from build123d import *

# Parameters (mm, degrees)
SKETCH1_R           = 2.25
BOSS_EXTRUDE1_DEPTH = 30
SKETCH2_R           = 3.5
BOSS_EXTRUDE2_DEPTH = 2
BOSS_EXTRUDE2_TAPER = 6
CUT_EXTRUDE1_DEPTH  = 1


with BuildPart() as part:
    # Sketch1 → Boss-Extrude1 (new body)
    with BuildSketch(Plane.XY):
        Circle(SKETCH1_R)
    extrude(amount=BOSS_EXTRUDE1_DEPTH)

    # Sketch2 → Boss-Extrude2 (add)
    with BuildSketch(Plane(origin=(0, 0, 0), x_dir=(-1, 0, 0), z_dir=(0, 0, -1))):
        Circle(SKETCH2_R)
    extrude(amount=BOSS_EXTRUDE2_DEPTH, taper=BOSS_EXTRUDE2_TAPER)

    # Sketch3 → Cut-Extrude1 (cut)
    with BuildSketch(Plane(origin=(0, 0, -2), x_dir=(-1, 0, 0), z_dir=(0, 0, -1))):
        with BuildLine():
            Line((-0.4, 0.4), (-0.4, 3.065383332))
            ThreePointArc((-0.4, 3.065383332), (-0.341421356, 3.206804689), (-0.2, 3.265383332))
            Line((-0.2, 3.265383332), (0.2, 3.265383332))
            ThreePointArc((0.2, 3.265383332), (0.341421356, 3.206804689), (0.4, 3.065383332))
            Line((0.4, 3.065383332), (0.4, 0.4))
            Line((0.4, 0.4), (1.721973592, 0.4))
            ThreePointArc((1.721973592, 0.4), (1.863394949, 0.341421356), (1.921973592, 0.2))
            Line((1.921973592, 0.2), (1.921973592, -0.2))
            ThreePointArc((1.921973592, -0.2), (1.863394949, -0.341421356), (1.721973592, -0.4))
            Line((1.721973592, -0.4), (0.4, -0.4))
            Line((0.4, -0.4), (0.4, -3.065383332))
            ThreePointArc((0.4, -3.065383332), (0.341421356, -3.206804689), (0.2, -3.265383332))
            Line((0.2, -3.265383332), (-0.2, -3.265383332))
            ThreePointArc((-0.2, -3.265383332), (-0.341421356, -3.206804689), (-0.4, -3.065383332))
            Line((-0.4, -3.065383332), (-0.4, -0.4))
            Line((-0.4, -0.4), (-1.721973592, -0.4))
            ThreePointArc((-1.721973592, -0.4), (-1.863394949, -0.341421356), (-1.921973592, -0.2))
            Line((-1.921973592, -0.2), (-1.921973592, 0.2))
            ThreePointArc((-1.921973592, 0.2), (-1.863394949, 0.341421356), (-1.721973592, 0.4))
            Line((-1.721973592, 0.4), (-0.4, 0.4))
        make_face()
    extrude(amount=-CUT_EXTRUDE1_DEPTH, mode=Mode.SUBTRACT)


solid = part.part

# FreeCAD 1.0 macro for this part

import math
import FreeCAD as App
import Part
import Sketcher

V = App.Vector

doc = App.newDocument("Part")
body = doc.addObject("PartDesign::Body", "Body")

# Sketch on XY plane
sketch1 = doc.addObject("Sketcher::SketchObject", "Sketch")
body.addObject(sketch1)
sketch1.AttachmentSupport = (doc.XY_Plane, [""])
sketch1.MapMode = "FlatFace"
sketch1.addGeometry(Part.Circle(V(0, 0, 0), V(0, 0, 1), 2.2), False)
sketch1.addConstraint(Sketcher.Constraint("Coincident", 0, 3, -1, 1))
sketch1.addConstraint(Sketcher.Constraint("Diameter", 0, 4.5))
pad1 = doc.addObject("PartDesign::Pad", "Pad")
body.addObject(pad1)
pad1.Profile = sketch1
pad1.Length = 30

# Sketch on XY plane
sketch2 = doc.addObject("Sketcher::SketchObject", "Sketch001")
body.addObject(sketch2)
sketch2.AttachmentSupport = (doc.XY_Plane, [""])
sketch2.MapMode = "FlatFace"
sketch2.addGeometry(Part.Circle(V(0, 0, 0), V(0, 0, 1), 3.5), False)
sketch2.addConstraint(Sketcher.Constraint("Coincident", 0, 3, -1, 1))
sketch2.addConstraint(Sketcher.Constraint("Diameter", 0, 7.0))
pad2 = doc.addObject("PartDesign::Pad", "Pad001")
body.addObject(pad2)
pad2.Profile = sketch2
pad2.Length = 2
pad2.Reversed = True
pad2.TaperAngle = -6

# Sketch on XY plane
sketch3 = doc.addObject("Sketcher::SketchObject", "Sketch002")
body.addObject(sketch3)
sketch3.AttachmentSupport = (doc.XY_Plane, [""])
sketch3.MapMode = "FlatFace"
sketch3.AttachmentOffset = App.Placement(V(0, 0, -2), App.Rotation())
sketch3.addGeometry(Part.LineSegment(V(0.4, 3.07, 0), V(0.4, 0.4, 0)), False)
sketch3.addGeometry(Part.LineSegment(V(0.4, 0.4, 0), V(1.72, 0.4, 0)), False)
sketch3.addGeometry(Part.ArcOfCircle(Part.Circle(V(1.72, 0.2, 0), V(0, 0, 1), 0.2), math.radians(0), math.radians(90)), False)
sketch3.addGeometry(Part.LineSegment(V(1.92, 0.2, 0), V(1.92, -0.2, 0)), False)
sketch3.addGeometry(Part.ArcOfCircle(Part.Circle(V(1.72, -0.2, 0), V(0, 0, 1), 0.2), math.radians(-90), math.radians(0)), False)
sketch3.addGeometry(Part.LineSegment(V(1.72, -0.4, 0), V(0.4, -0.4, 0)), False)
sketch3.addGeometry(Part.LineSegment(V(0.4, -0.4, 0), V(0.4, -3.07, 0)), False)
sketch3.addGeometry(Part.ArcOfCircle(Part.Circle(V(0.2, -3.07, 0), V(0, 0, 1), 0.2), math.radians(-90), math.radians(0)), False)
sketch3.addGeometry(Part.LineSegment(V(0.2, -3.27, 0), V(-0.2, -3.27, 0)), False)
sketch3.addGeometry(Part.ArcOfCircle(Part.Circle(V(-0.2, -3.07, 0), V(0, 0, 1), 0.2), math.radians(180), math.radians(270)), False)
sketch3.addGeometry(Part.LineSegment(V(-0.4, -3.07, 0), V(-0.4, -0.4, 0)), False)
sketch3.addGeometry(Part.LineSegment(V(-0.4, -0.4, 0), V(-1.72, -0.4, 0)), False)
sketch3.addGeometry(Part.ArcOfCircle(Part.Circle(V(-1.72, -0.2, 0), V(0, 0, 1), 0.2), math.radians(180), math.radians(270)), False)
sketch3.addGeometry(Part.LineSegment(V(-1.92, -0.2, 0), V(-1.92, 0.2, 0)), False)
sketch3.addGeometry(Part.ArcOfCircle(Part.Circle(V(-1.72, 0.2, 0), V(0, 0, 1), 0.2), math.radians(90), math.radians(180)), False)
sketch3.addGeometry(Part.LineSegment(V(-1.72, 0.4, 0), V(-0.4, 0.4, 0)), False)
sketch3.addGeometry(Part.LineSegment(V(-0.4, 0.4, 0), V(-0.4, 3.07, 0)), False)
sketch3.addGeometry(Part.ArcOfCircle(Part.Circle(V(-0.2, 3.07, 0), V(0, 0, 1), 0.2), math.radians(90), math.radians(180)), False)
sketch3.addGeometry(Part.LineSegment(V(-0.2, 3.27, 0), V(0.2, 3.27, 0)), False)
sketch3.addGeometry(Part.ArcOfCircle(Part.Circle(V(0.2, 3.07, 0), V(0, 0, 1), 0.2), math.radians(0), math.radians(90)), False)
sketch3.addConstraint(Sketcher.Constraint("Coincident", 0, 2, 1, 1))
sketch3.addConstraint(Sketcher.Constraint("Tangent", 1, 2, 2, 2))
sketch3.addConstraint(Sketcher.Constraint("Tangent", 2, 1, 3, 1))
sketch3.addConstraint(Sketcher.Constraint("Tangent", 3, 2, 4, 2))
sketch3.addConstraint(Sketcher.Constraint("Tangent", 4, 1, 5, 1))
sketch3.addConstraint(Sketcher.Constraint("Coincident", 5, 2, 6, 1))
sketch3.addConstraint(Sketcher.Constraint("Tangent", 6, 2, 7, 2))
sketch3.addConstraint(Sketcher.Constraint("Tangent", 7, 1, 8, 1))
sketch3.addConstraint(Sketcher.Constraint("Tangent", 8, 2, 9, 2))
sketch3.addConstraint(Sketcher.Constraint("Tangent", 9, 1, 10, 1))
sketch3.addConstraint(Sketcher.Constraint("Coincident", 10, 2, 11, 1))
sketch3.addConstraint(Sketcher.Constraint("Tangent", 11, 2, 12, 2))
sketch3.addConstraint(Sketcher.Constraint("Tangent", 12, 1, 13, 1))
sketch3.addConstraint(Sketcher.Constraint("Tangent", 13, 2, 14, 2))
sketch3.addConstraint(Sketcher.Constraint("Tangent", 14, 1, 15, 1))
sketch3.addConstraint(Sketcher.Constraint("Coincident", 15, 2, 16, 1))
sketch3.addConstraint(Sketcher.Constraint("Tangent", 16, 2, 17, 2))
sketch3.addConstraint(Sketcher.Constraint("Tangent", 17, 1, 18, 1))
sketch3.addConstraint(Sketcher.Constraint("Tangent", 18, 2, 19, 2))
sketch3.addConstraint(Sketcher.Constraint("Tangent", 19, 1, 0, 1))
sketch3.addConstraint(Sketcher.Constraint("Vertical", 0))
sketch3.addConstraint(Sketcher.Constraint("Horizontal", 1))
sketch3.addConstraint(Sketcher.Constraint("Vertical", 3))
sketch3.addConstraint(Sketcher.Constraint("Horizontal", 5))
sketch3.addConstraint(Sketcher.Constraint("Vertical", 6))
sketch3.addConstraint(Sketcher.Constraint("Horizontal", 8))
sketch3.addConstraint(Sketcher.Constraint("Vertical", 10))
sketch3.addConstraint(Sketcher.Constraint("Horizontal", 11))
sketch3.addConstraint(Sketcher.Constraint("Vertical", 13))
sketch3.addConstraint(Sketcher.Constraint("Horizontal", 15))
sketch3.addConstraint(Sketcher.Constraint("Vertical", 16))
sketch3.addConstraint(Sketcher.Constraint("Horizontal", 18))
sketch3.addConstraint(Sketcher.Constraint("Equal", 2, 4))
sketch3.addConstraint(Sketcher.Constraint("Equal", 4, 7))
sketch3.addConstraint(Sketcher.Constraint("Equal", 7, 9))
sketch3.addConstraint(Sketcher.Constraint("Equal", 9, 12))
sketch3.addConstraint(Sketcher.Constraint("Equal", 12, 14))
sketch3.addConstraint(Sketcher.Constraint("Equal", 14, 17))
sketch3.addConstraint(Sketcher.Constraint("Equal", 17, 19))
sketch3.addConstraint(Sketcher.Constraint("Symmetric", 2, 3, 12, 3, -1, 1))
sketch3.addConstraint(Sketcher.Constraint("Symmetric", 7, 3, 17, 3, -1, 1))
sketch3.addConstraint(Sketcher.Constraint("Symmetric", 5, 2, 10, 2, -2))
sketch3.addConstraint(Sketcher.Constraint("Symmetric", 0, 2, 15, 2, -2))
sketch3.addConstraint(Sketcher.Constraint("Equal", 18, 3))
sketch3.addConstraint(Sketcher.Constraint("Radius", 2, 0.2))
sketch3.addConstraint(Sketcher.Constraint("DistanceX", 8, 2, 8, 1, 0.4))
sketch3.addConstraint(Sketcher.Constraint("DistanceX", 1, 1, 1, 2, 1.321974))
sketch3.addConstraint(Sketcher.Constraint("DistanceY", 0, 2, 0, 1, 2.665383))
pocket1 = doc.addObject("PartDesign::Pocket", "Pocket")
body.addObject(pocket1)
pocket1.Profile = sketch3
pocket1.Length = 1
pocket1.Reversed = True

doc.recompute()
